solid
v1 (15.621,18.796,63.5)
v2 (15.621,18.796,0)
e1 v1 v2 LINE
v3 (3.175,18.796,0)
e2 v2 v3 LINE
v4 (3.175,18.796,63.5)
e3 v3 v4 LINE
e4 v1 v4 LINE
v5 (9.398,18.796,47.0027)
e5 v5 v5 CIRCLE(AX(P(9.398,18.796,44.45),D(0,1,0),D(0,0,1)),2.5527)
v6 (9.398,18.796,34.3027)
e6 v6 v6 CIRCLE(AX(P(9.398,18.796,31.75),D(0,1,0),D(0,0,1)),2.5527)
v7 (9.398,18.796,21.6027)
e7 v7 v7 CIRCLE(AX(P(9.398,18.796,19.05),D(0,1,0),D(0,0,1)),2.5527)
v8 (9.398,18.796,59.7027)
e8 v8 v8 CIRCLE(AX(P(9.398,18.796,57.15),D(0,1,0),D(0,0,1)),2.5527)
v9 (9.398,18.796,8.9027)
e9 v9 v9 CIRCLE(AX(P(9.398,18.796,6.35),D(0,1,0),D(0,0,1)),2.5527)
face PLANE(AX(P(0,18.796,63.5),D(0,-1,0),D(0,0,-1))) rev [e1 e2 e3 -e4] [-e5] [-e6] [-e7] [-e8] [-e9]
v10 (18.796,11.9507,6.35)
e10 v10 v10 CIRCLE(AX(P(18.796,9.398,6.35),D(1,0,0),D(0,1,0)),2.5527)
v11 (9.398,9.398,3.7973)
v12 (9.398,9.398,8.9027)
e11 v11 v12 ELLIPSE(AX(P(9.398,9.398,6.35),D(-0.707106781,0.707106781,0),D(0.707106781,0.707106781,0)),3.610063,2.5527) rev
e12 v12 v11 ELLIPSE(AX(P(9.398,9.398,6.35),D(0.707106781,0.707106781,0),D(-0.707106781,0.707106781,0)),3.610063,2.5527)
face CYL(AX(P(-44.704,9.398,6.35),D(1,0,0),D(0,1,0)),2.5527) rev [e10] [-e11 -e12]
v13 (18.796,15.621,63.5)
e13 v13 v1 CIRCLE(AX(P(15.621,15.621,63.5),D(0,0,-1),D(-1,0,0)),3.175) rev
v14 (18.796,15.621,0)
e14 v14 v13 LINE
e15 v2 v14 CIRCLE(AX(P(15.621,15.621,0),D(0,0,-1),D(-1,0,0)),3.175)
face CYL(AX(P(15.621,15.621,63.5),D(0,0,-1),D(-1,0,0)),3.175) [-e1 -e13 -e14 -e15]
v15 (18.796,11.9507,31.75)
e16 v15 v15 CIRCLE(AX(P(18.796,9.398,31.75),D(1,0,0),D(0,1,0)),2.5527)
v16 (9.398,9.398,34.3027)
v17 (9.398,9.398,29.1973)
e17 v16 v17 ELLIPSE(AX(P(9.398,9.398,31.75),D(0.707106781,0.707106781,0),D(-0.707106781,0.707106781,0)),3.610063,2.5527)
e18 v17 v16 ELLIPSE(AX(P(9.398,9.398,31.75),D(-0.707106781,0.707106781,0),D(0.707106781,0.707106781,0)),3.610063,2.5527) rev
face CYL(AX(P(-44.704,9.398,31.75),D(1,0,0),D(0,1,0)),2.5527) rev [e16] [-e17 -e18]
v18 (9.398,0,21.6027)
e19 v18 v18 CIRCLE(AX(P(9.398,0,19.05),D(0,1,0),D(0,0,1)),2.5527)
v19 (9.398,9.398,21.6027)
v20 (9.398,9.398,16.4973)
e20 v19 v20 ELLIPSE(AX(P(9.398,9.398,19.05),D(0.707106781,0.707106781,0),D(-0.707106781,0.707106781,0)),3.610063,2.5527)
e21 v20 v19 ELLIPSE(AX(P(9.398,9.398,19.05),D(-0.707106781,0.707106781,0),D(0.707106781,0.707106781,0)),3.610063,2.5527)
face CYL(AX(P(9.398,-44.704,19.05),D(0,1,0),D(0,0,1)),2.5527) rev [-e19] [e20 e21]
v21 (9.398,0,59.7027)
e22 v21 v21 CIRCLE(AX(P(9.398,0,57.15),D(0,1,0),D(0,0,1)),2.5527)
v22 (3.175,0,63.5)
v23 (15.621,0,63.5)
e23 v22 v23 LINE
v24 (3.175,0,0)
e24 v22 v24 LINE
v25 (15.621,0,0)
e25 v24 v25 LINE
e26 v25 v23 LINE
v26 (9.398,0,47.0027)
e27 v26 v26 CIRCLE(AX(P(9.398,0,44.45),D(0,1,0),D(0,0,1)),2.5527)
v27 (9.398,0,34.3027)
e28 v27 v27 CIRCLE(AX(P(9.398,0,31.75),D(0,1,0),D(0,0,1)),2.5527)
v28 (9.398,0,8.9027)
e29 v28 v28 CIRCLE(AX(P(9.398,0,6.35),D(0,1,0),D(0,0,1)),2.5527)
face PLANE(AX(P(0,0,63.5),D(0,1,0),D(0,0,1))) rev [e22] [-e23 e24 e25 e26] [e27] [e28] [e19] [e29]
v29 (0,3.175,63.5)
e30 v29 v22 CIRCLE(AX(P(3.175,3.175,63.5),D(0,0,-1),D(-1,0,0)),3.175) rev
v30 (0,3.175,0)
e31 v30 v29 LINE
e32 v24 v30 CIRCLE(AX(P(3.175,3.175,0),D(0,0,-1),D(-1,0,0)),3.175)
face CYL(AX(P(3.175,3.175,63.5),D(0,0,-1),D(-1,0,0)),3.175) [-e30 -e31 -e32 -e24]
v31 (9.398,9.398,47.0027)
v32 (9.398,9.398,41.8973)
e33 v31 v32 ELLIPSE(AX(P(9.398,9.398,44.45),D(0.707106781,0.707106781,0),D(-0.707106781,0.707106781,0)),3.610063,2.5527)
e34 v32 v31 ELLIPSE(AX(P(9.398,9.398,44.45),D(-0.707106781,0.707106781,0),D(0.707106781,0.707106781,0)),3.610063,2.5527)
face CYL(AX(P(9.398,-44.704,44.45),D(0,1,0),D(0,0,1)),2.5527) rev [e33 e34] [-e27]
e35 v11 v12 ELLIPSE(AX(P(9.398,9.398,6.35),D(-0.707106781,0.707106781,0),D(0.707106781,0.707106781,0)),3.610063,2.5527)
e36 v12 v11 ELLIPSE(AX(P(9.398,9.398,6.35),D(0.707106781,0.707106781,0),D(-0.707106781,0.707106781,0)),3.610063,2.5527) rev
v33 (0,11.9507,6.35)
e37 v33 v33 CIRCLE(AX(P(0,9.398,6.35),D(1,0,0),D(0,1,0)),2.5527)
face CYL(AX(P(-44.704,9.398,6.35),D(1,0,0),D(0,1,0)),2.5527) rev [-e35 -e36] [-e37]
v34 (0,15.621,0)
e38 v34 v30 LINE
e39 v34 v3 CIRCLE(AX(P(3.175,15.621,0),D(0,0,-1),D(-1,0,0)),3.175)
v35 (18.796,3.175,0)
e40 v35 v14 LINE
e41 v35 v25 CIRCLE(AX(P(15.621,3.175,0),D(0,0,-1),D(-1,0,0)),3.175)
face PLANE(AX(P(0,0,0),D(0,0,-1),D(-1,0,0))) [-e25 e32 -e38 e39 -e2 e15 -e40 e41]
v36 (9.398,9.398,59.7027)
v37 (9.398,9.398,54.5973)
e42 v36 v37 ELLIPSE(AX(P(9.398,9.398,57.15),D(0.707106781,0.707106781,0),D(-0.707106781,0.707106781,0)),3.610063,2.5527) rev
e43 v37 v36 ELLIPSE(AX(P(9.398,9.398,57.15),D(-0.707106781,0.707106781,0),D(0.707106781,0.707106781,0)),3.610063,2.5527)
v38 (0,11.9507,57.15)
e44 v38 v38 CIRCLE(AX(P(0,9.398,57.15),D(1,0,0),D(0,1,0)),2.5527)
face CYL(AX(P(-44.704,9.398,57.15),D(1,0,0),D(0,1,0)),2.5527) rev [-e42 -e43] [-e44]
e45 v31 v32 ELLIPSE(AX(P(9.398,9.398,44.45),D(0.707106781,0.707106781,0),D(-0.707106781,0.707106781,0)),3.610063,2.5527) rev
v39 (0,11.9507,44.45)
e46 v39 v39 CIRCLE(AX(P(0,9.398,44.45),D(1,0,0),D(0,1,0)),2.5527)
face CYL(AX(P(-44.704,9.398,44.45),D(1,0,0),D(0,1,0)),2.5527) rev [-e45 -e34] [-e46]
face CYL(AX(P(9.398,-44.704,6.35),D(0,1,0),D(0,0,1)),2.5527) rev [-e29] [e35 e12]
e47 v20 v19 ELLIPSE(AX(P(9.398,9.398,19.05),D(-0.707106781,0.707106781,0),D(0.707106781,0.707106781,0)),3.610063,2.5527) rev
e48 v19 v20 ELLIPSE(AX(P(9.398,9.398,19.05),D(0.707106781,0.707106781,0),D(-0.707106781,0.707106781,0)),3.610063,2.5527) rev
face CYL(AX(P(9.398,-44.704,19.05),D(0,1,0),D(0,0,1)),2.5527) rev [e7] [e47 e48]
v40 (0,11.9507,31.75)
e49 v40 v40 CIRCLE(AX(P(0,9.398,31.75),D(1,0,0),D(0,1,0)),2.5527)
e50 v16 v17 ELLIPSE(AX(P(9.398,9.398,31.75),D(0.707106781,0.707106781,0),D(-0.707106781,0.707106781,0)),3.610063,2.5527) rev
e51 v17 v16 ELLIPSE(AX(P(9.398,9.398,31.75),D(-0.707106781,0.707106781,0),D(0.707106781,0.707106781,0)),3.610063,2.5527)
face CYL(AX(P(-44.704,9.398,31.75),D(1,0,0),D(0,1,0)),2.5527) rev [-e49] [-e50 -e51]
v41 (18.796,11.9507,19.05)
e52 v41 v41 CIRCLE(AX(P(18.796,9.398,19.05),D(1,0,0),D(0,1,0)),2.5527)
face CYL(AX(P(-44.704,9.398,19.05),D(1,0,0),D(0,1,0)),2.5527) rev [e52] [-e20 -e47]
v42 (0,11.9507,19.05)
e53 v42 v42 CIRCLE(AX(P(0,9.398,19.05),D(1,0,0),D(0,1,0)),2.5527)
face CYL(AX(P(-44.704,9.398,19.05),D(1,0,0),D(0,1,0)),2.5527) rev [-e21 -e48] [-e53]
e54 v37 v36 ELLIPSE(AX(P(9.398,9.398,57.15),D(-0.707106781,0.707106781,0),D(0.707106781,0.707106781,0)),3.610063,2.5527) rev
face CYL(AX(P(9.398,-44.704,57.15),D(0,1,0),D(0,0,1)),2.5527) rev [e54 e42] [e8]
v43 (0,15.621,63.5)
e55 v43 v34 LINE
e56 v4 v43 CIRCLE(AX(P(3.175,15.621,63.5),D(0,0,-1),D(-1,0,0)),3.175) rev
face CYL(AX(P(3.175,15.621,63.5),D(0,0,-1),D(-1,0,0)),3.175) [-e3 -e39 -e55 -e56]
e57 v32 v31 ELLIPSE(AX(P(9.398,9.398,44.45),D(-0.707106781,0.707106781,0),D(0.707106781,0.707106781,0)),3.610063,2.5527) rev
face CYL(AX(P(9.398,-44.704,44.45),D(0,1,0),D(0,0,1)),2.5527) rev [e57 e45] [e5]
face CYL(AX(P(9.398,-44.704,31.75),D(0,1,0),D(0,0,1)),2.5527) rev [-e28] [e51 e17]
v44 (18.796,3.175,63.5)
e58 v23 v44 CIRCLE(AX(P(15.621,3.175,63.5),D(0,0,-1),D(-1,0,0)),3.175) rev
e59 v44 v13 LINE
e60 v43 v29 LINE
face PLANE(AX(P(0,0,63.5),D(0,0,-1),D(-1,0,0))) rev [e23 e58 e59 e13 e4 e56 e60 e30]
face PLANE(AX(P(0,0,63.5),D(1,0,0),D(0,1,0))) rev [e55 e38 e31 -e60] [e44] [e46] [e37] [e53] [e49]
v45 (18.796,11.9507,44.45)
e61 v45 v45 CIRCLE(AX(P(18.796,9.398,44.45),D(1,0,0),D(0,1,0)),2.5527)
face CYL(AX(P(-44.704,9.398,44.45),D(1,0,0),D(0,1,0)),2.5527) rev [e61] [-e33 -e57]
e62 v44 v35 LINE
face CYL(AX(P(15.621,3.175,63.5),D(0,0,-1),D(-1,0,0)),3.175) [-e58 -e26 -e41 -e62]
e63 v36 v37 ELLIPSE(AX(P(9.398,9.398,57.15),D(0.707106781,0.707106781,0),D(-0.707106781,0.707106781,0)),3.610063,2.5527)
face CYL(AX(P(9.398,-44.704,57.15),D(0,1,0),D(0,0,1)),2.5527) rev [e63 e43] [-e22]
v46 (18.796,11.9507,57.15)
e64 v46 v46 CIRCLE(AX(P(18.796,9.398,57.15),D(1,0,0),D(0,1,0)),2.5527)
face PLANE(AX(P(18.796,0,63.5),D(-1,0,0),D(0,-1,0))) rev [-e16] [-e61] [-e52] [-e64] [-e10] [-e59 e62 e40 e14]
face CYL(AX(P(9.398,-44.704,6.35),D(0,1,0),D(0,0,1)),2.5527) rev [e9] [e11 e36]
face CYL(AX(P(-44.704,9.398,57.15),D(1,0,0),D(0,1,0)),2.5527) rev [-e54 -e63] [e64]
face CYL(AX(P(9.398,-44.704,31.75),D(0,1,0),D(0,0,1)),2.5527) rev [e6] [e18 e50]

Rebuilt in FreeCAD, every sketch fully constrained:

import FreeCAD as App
import Part
import Sketcher
from FreeCAD import Vector
Q = App.Units.Quantity


def edges_at(feature, points):
    """Names of the edges that pass closest to the given points."""
    edges = feature.Shape.Edges
    near = lambda p: min(range(len(edges)), key=lambda i: edges[i].distToShape(Part.Vertex(*p))[0])
    return sorted({f"Edge{near(p) + 1}" for p in points})

doc = App.newDocument("Part")
body = doc.addObject("PartDesign::Body", "Body")

# Sketch on XY plane
sketch1 = doc.addObject("Sketcher::SketchObject", "Sketch")
body.addObject(sketch1)
sketch1.AttachmentSupport = (doc.XY_Plane, [""])
sketch1.MapMode = "FlatFace"
sketch1.addGeometry(Part.LineSegment(Vector(0, 19, 0), Vector(0, 0, 0)), False)
sketch1.addGeometry(Part.LineSegment(Vector(0, 0, 0), Vector(19, 0, 0)), False)
sketch1.addGeometry(Part.LineSegment(Vector(19, 0, 0), Vector(19, 19, 0)), False)
sketch1.addGeometry(Part.LineSegment(Vector(19, 19, 0), Vector(0, 19, 0)), False)
sketch1.addConstraint(Sketcher.Constraint("Coincident", 0, 2, 1, 1))
sketch1.addConstraint(Sketcher.Constraint("Coincident", 1, 2, 2, 1))
sketch1.addConstraint(Sketcher.Constraint("Coincident", 2, 2, 3, 1))
sketch1.addConstraint(Sketcher.Constraint("Coincident", 3, 2, 0, 1))
sketch1.addConstraint(Sketcher.Constraint("Vertical", 0))
sketch1.addConstraint(Sketcher.Constraint("Horizontal", 1))
sketch1.addConstraint(Sketcher.Constraint("Vertical", 2))
sketch1.addConstraint(Sketcher.Constraint("Horizontal", 3))
sketch1.addConstraint(Sketcher.Constraint("Coincident", 0, 2, -1, 1))
sketch1.addConstraint(Sketcher.Constraint("Equal", 3, 0))
sketch1.addConstraint(Sketcher.Constraint("DistanceX", 1, 1, 1, 2, Q("0.74 in")))
pad1 = doc.addObject("PartDesign::Pad", "Pad")
body.addObject(pad1)
pad1.Profile = sketch1
pad1.Length = Q("2.5 in")
doc.recompute()

fillet = doc.addObject("PartDesign::Fillet", "Fillet")
body.addObject(fillet)
fillet.Base = (pad1, edges_at(pad1, [
    (0, 18.796, 31.75),
    (18.796, 18.796, 31.75),
    (18.796, 0, 31.75),
    (0, 0, 31.75),
]))
fillet.Radius = Q("0.125 in")

# Sketch on XZ plane
sketch2 = doc.addObject("Sketcher::SketchObject", "Sketch001")
body.addObject(sketch2)
sketch2.AttachmentSupport = (doc.XZ_Plane, [""])
sketch2.MapMode = "FlatFace"
sketch2.AttachmentOffset = App.Placement(Vector(0, 0, -0.74 * 25.4), App.Rotation())
sketch2.addGeometry(Part.Circle(Vector(9.4, 6.3, 0), Vector(0, 0, 1), 2.6), False)
sketch2.addGeometry(Part.Circle(Vector(9.4, 19.1, 0), Vector(0, 0, 1), 2.6), False)
sketch2.addGeometry(Part.Circle(Vector(9.4, 31.8, 0), Vector(0, 0, 1), 2.6), False)
sketch2.addGeometry(Part.Circle(Vector(9.4, 44.5, 0), Vector(0, 0, 1), 2.6), False)
sketch2.addGeometry(Part.Circle(Vector(9.4, 57.1, 0), Vector(0, 0, 1), 2.6), False)
sketch2.addConstraint(Sketcher.Constraint("Equal", 0, 1))
sketch2.addConstraint(Sketcher.Constraint("Equal", 1, 2))
sketch2.addConstraint(Sketcher.Constraint("Equal", 2, 3))
sketch2.addConstraint(Sketcher.Constraint("Equal", 3, 4))
sketch2.addConstraint(Sketcher.Constraint("Vertical", 0, 3, 1, 3))
sketch2.addConstraint(Sketcher.Constraint("Vertical", 1, 3, 2, 3))
sketch2.addConstraint(Sketcher.Constraint("Vertical", 2, 3, 3, 3))
sketch2.addConstraint(Sketcher.Constraint("Vertical", 3, 3, 4, 3))
sketch2.addConstraint(Sketcher.Constraint("Diameter", 0, Q("0.201 in")))
sketch2.addConstraint(Sketcher.Constraint("DistanceY", 0, 3, 2, 3, Q("1 in")))
sketch2.addConstraint(Sketcher.Constraint("DistanceY", 1, 3, 3, 3, Q("1 in")))
sketch2.addConstraint(Sketcher.Constraint("DistanceY", 2, 3, 4, 3, Q("1 in")))
sketch2.addConstraint(Sketcher.Constraint("DistanceY", 0, 3, 1, 3, Q("0.5 in")))
sketch2.addConstraint(Sketcher.Constraint("DistanceX", -1, 1, 0, 3, Q("0.37 in")))
sketch2.addConstraint(Sketcher.Constraint("DistanceY", -1, 1, 0, 3, Q("0.25 in")))
pocket1 = doc.addObject("PartDesign::Pocket", "Pocket")
body.addObject(pocket1)
pocket1.Profile = sketch2
pocket1.Length = Q("2.5 in")
pocket1.Reversed = True

# Sketch on YZ plane
sketch3 = doc.addObject("Sketcher::SketchObject", "Sketch002")
body.addObject(sketch3)
sketch3.AttachmentSupport = (doc.YZ_Plane, [""])
sketch3.MapMode = "FlatFace"
sketch3.AttachmentOffset = App.Placement(Vector(0, 0, 0.74 * 25.4), App.Rotation())
sketch3.addGeometry(Part.Circle(Vector(9.4, 57.1, 0), Vector(0, 0, 1), 2.6), False)
sketch3.addGeometry(Part.Circle(Vector(9.4, 44.5, 0), Vector(0, 0, 1), 2.6), False)
sketch3.addGeometry(Part.Circle(Vector(9.4, 31.8, 0), Vector(0, 0, 1), 2.6), False)
sketch3.addGeometry(Part.Circle(Vector(9.4, 19.1, 0), Vector(0, 0, 1), 2.6), False)
sketch3.addGeometry(Part.Circle(Vector(9.4, 6.3, 0), Vector(0, 0, 1), 2.6), False)
sketch3.addConstraint(Sketcher.Constraint("Equal", 0, 1))
sketch3.addConstraint(Sketcher.Constraint("Equal", 1, 2))
sketch3.addConstraint(Sketcher.Constraint("Equal", 2, 3))
sketch3.addConstraint(Sketcher.Constraint("Equal", 3, 4))
sketch3.addConstraint(Sketcher.Constraint("Vertical", 0, 3, 1, 3))
sketch3.addConstraint(Sketcher.Constraint("Vertical", 1, 3, 2, 3))
sketch3.addConstraint(Sketcher.Constraint("Vertical", 2, 3, 3, 3))
sketch3.addConstraint(Sketcher.Constraint("Vertical", 3, 3, 4, 3))
sketch3.addConstraint(Sketcher.Constraint("Diameter", 0, Q("0.201 in")))
sketch3.addConstraint(Sketcher.Constraint("DistanceY", 2, 3, 0, 3, Q("1 in")))
sketch3.addConstraint(Sketcher.Constraint("DistanceY", 3, 3, 1, 3, Q("1 in")))
sketch3.addConstraint(Sketcher.Constraint("DistanceY", 4, 3, 2, 3, Q("1 in")))
sketch3.addConstraint(Sketcher.Constraint("DistanceY", 1, 3, 0, 3, Q("0.5 in")))
sketch3.addConstraint(Sketcher.Constraint("DistanceX", -1, 1, 0, 3, Q("0.37 in")))
sketch3.addConstraint(Sketcher.Constraint("DistanceY", -1, 1, 0, 3, Q("2.25 in")))
pocket2 = doc.addObject("PartDesign::Pocket", "Pocket001")
body.addObject(pocket2)
pocket2.Profile = sketch3
pocket2.Length = Q("2.5 in")

doc.recompute()
